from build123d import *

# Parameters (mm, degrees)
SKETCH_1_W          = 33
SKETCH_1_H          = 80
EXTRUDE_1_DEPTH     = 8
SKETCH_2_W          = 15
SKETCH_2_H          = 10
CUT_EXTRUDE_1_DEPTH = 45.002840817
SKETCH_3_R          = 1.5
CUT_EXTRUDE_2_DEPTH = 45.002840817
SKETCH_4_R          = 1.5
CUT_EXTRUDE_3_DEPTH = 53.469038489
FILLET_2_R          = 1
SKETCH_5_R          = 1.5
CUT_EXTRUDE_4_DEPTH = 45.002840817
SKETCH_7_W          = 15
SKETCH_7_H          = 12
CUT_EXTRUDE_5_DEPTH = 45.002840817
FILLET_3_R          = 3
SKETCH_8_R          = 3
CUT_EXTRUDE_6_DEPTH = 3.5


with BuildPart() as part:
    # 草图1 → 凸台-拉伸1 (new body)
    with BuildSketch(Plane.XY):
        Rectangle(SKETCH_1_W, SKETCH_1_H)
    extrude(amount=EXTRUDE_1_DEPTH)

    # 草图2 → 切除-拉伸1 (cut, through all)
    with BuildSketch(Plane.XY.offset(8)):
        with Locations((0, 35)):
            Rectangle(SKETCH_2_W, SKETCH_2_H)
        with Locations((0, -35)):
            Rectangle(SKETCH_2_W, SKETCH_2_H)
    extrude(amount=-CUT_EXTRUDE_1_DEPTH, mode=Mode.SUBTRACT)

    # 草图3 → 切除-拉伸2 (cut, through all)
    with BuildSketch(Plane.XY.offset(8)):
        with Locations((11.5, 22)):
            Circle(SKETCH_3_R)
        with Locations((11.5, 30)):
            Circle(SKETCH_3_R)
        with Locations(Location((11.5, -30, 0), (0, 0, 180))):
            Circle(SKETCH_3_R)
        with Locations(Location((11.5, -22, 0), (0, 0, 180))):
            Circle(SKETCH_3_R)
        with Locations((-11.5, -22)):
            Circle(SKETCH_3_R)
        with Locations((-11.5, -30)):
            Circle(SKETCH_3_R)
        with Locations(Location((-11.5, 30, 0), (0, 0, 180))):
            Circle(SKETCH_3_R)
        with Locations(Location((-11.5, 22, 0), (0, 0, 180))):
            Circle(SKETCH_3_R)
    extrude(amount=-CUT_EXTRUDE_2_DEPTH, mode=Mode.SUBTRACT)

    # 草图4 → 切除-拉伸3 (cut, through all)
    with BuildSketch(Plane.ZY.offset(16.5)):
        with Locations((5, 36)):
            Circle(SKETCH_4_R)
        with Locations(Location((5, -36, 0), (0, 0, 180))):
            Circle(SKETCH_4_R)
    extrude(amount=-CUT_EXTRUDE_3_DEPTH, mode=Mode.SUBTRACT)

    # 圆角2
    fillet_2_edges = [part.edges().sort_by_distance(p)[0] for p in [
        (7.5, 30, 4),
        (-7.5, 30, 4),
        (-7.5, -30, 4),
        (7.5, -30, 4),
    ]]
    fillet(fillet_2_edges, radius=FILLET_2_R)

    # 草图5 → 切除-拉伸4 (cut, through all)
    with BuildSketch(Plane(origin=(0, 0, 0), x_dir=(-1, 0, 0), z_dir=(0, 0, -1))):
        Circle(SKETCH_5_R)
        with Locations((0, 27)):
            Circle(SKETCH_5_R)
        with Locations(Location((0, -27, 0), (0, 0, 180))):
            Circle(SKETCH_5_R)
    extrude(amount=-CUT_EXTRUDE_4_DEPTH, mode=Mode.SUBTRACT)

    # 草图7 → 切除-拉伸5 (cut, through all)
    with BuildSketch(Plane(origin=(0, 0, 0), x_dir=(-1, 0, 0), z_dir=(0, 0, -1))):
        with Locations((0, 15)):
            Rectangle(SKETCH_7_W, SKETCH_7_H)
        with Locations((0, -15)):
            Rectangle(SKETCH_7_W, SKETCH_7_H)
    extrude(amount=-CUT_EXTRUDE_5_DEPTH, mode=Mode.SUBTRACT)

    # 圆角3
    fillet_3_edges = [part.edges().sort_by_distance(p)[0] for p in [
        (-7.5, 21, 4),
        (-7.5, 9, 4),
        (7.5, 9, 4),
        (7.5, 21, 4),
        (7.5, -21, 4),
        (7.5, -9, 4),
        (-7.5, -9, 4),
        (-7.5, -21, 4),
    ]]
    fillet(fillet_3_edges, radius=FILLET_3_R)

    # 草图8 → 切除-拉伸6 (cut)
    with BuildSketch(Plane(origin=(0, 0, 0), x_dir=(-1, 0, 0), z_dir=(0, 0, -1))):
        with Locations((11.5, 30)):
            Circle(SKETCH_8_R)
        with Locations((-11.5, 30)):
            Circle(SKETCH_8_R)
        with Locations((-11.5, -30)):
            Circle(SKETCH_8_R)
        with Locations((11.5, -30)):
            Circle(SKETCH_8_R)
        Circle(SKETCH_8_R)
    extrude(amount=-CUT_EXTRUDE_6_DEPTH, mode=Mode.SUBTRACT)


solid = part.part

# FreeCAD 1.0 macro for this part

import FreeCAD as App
import Part
import Sketcher
from FreeCAD import Vector
Q = App.Units.Quantity


def edges_at(feature, points):
    """Names of the edges that pass closest to the given points."""
    edges = feature.Shape.Edges
    near = lambda p: min(range(len(edges)), key=lambda i: edges[i].distToShape(Part.Vertex(*p))[0])
    return sorted({f"Edge{near(p) + 1}" for p in points})


def add_polygon(sketch, points):
    """Adds a closed chain of lines whose ends are joined by coincident constraints."""
    first, n = sketch.GeometryCount, len(points)
    for a, b in zip(points, points[1:] + points[:1]):
        sketch.addGeometry(Part.LineSegment(App.Vector(*a, 0), App.Vector(*b, 0)), False)
    for i in range(n):
        sketch.addConstraint(Sketcher.Constraint("Coincident", first + i, 2, first + (i + 1) % n, 1))

doc = App.newDocument("Part")
body = doc.addObject("PartDesign::Body", "Body")

# Sketch on XY plane
sketch1 = body.newObject("Sketcher::SketchObject", "Sketch")
sketch1.AttachmentSupport = (doc.getObject("XY_Plane"), [""])
sketch1.MapMode = "FlatFace"
add_polygon(sketch1, [(-16, 40), (-16, -40), (16, -40), (16, 40)])  # lines 0-3
sketch1.addConstraint(Sketcher.Constraint("Vertical", 0))
sketch1.addConstraint(Sketcher.Constraint("Horizontal", 1))
sketch1.addConstraint(Sketcher.Constraint("Vertical", 2))
sketch1.addConstraint(Sketcher.Constraint("Horizontal", 3))
sketch1.addConstraint(Sketcher.Constraint("Symmetric", 0, 2, 2, 2, -1, 1))
sketch1.addConstraint(Sketcher.Constraint("DistanceX", 1, 1, 1, 2, Q("33 mm")))
sketch1.addConstraint(Sketcher.Constraint("DistanceY", 0, 2, 0, 1, Q("80 mm")))
pad1 = body.newObject("PartDesign::Pad", "Pad")
pad1.Profile = sketch1
pad1.Length = 8

# Sketch on XY plane
sketch2 = body.newObject("Sketcher::SketchObject", "Sketch001")
sketch2.AttachmentSupport = (doc.getObject("XY_Plane"), [""])
sketch2.MapMode = "FlatFace"
sketch2.AttachmentOffset = App.Placement(Vector(0, 0, 8), App.Rotation())
add_polygon(sketch2, [(-7.5, 40), (-7.5, 30), (7.5, 30), (7.5, 40)])  # lines 0-3
add_polygon(sketch2, [(-7.5, -30), (-7.5, -40), (7.5, -40), (7.5, -30)])  # lines 4-7
sketch2.addConstraint(Sketcher.Constraint("Vertical", 0))
sketch2.addConstraint(Sketcher.Constraint("Horizontal", 1))
sketch2.addConstraint(Sketcher.Constraint("Vertical", 2))
sketch2.addConstraint(Sketcher.Constraint("Horizontal", 3))
sketch2.addConstraint(Sketcher.Constraint("Vertical", 4))
sketch2.addConstraint(Sketcher.Constraint("Horizontal", 5))
sketch2.addConstraint(Sketcher.Constraint("Vertical", 6))
sketch2.addConstraint(Sketcher.Constraint("Horizontal", 7))
sketch2.addConstraint(Sketcher.Constraint("Symmetric", 2, 2, 4, 2, -1, 1))
sketch2.addConstraint(Sketcher.Constraint("Symmetric", 0, 2, 6, 2, -1, 1))
sketch2.addConstraint(Sketcher.Constraint("Vertical", 3, 2, 4, 2))
sketch2.addConstraint(Sketcher.Constraint("DistanceX", 1, 1, 1, 2, Q("15 mm")))
sketch2.addConstraint(Sketcher.Constraint("DistanceY", 0, 2, 0, 1, Q("10 mm")))
sketch2.addConstraint(Sketcher.Constraint("DistanceY", -1, 1, 0, 2, Q("30 mm")))
pocket1 = body.newObject("PartDesign::Pocket", "Pocket")
pocket1.Profile = sketch2
pocket1.Type = "ThroughAll"

# Sketch on XY plane
sketch3 = body.newObject("Sketcher::SketchObject", "Sketch002")
sketch3.AttachmentSupport = (doc.getObject("XY_Plane"), [""])
sketch3.MapMode = "FlatFace"
sketch3.AttachmentOffset = App.Placement(Vector(0, 0, 8), App.Rotation())
sketch3.addGeometry(Part.Circle(Vector(11.5, 22, 0), Vector(0, 0, 1), 1.5), False)
sketch3.addGeometry(Part.Circle(Vector(11.5, 30, 0), Vector(0, 0, 1), 1.5), False)
sketch3.addGeometry(Part.Circle(Vector(11.5, -30, 0), Vector(0, 0, 1), 1.5), False)
sketch3.addGeometry(Part.Circle(Vector(11.5, -22, 0), Vector(0, 0, 1), 1.5), False)
sketch3.addGeometry(Part.Circle(Vector(-11.5, -22, 0), Vector(0, 0, 1), 1.5), False)
sketch3.addGeometry(Part.Circle(Vector(-11.5, -30, 0), Vector(0, 0, 1), 1.5), False)
sketch3.addGeometry(Part.Circle(Vector(-11.5, 30, 0), Vector(0, 0, 1), 1.5), False)
sketch3.addGeometry(Part.Circle(Vector(-11.5, 22, 0), Vector(0, 0, 1), 1.5), False)
sketch3.addConstraint(Sketcher.Constraint("Equal", 0, 1))
sketch3.addConstraint(Sketcher.Constraint("Equal", 1, 2))
sketch3.addConstraint(Sketcher.Constraint("Equal", 2, 3))
sketch3.addConstraint(Sketcher.Constraint("Equal", 3, 4))
sketch3.addConstraint(Sketcher.Constraint("Equal", 4, 5))
sketch3.addConstraint(Sketcher.Constraint("Equal", 5, 6))
sketch3.addConstraint(Sketcher.Constraint("Equal", 6, 7))
sketch3.addConstraint(Sketcher.Constraint("Symmetric", 0, 3, 4, 3, -1, 1))
sketch3.addConstraint(Sketcher.Constraint("Symmetric", 1, 3, 5, 3, -1, 1))
sketch3.addConstraint(Sketcher.Constraint("Symmetric", 2, 3, 6, 3, -1, 1))
sketch3.addConstraint(Sketcher.Constraint("Symmetric", 3, 3, 7, 3, -1, 1))
sketch3.addConstraint(Sketcher.Constraint("Symmetric", 3, 3, 4, 3, -2))
sketch3.addConstraint(Sketcher.Constraint("Symmetric", 2, 3, 5, 3, -2))
sketch3.addConstraint(Sketcher.Constraint("Vertical", 0, 3, 1, 3))
sketch3.addConstraint(Sketcher.Constraint("Diameter", 0, Q("3 mm")))
sketch3.addConstraint(Sketcher.Constraint("DistanceY", -1, 1, 0, 3, Q("22 mm")))
sketch3.addConstraint(Sketcher.Constraint("DistanceY", -1, 1, 1, 3, Q("30 mm")))
sketch3.addConstraint(Sketcher.Constraint("DistanceX", 4, 3, 3, 3, Q("23 mm")))
pocket2 = body.newObject("PartDesign::Pocket", "Pocket001")
pocket2.Profile = sketch3
pocket2.Type = "ThroughAll"

# Sketch on YZ plane
sketch4 = body.newObject("Sketcher::SketchObject", "Sketch003")
sketch4.AttachmentSupport = (doc.getObject("YZ_Plane"), [""])
sketch4.MapMode = "FlatFace"
sketch4.AttachmentOffset = App.Placement(Vector(0, 0, -16.5), App.Rotation())
sketch4.addGeometry(Part.Circle(Vector(36, 5, 0), Vector(0, 0, 1), 1.5), False)
sketch4.addGeometry(Part.Circle(Vector(-36, 5, 0), Vector(0, 0, 1), 1.5), False)
sketch4.addConstraint(Sketcher.Constraint("Equal", 0, 1))
sketch4.addConstraint(Sketcher.Constraint("Symmetric", 0, 3, 1, 3, -2))
sketch4.addConstraint(Sketcher.Constraint("Diameter", 0, Q("3 mm")))
sketch4.addConstraint(Sketcher.Constraint("DistanceX", -1, 1, 0, 3, Q("36 mm")))
sketch4.addConstraint(Sketcher.Constraint("DistanceY", -1, 1, 0, 3, Q("5 mm")))
pocket3 = body.newObject("PartDesign::Pocket", "Pocket002")
pocket3.Profile = sketch4
pocket3.Type = "ThroughAll"
pocket3.Reversed = True
doc.recompute()

fillet = body.newObject("PartDesign::Fillet", "Fillet")
fillet.Base = (pocket3, edges_at(pocket3, [
    (7.5, 30, 4),
    (-7.5, 30, 4),
    (-7.5, -30, 4),
    (7.5, -30, 4),
]))
fillet.Radius = 1

# Sketch on XY plane
sketch5 = body.newObject("Sketcher::SketchObject", "Sketch004")
sketch5.AttachmentSupport = (doc.getObject("XY_Plane"), [""])
sketch5.MapMode = "FlatFace"
sketch5.addGeometry(Part.Circle(Vector(0, 0, 0), Vector(0, 0, 1), 1.5), False)
sketch5.addGeometry(Part.Circle(Vector(0, 27, 0), Vector(0, 0, 1), 1.5), False)
sketch5.addGeometry(Part.Circle(Vector(0, -27, 0), Vector(0, 0, 1), 1.5), False)
sketch5.addConstraint(Sketcher.Constraint("Coincident", 0, 3, -1, 1))
sketch5.addConstraint(Sketcher.Constraint("Equal", 0, 1))
sketch5.addConstraint(Sketcher.Constraint("Equal", 1, 2))
sketch5.addConstraint(Sketcher.Constraint("Symmetric", 1, 3, 2, 3, -1, 1))
sketch5.addConstraint(Sketcher.Constraint("PointOnObject", 1, 3, -2))
sketch5.addConstraint(Sketcher.Constraint("Diameter", 0, Q("3 mm")))
sketch5.addConstraint(Sketcher.Constraint("DistanceY", -1, 1, 1, 3, Q("27 mm")))
pocket4 = body.newObject("PartDesign::Pocket", "Pocket003")
pocket4.Profile = sketch5
pocket4.Type = "ThroughAll"
pocket4.Reversed = True

# Sketch on XY plane
sketch6 = body.newObject("Sketcher::SketchObject", "Sketch005")
sketch6.AttachmentSupport = (doc.getObject("XY_Plane"), [""])
sketch6.MapMode = "FlatFace"
add_polygon(sketch6, [(8, 21), (8, 9), (-8, 9), (-8, 21)])  # lines 0-3
add_polygon(sketch6, [(8, -9), (8, -21), (-8, -21), (-8, -9)])  # lines 4-7
sketch6.addConstraint(Sketcher.Constraint("Vertical", 0))
sketch6.addConstraint(Sketcher.Constraint("Horizontal", 1))
sketch6.addConstraint(Sketcher.Constraint("Vertical", 2))
sketch6.addConstraint(Sketcher.Constraint("Horizontal", 3))
sketch6.addConstraint(Sketcher.Constraint("Vertical", 4))
sketch6.addConstraint(Sketcher.Constraint("Horizontal", 5))
sketch6.addConstraint(Sketcher.Constraint("Vertical", 6))
sketch6.addConstraint(Sketcher.Constraint("Horizontal", 7))
sketch6.addConstraint(Sketcher.Constraint("Symmetric", 2, 2, 4, 2, -1, 1))
sketch6.addConstraint(Sketcher.Constraint("Symmetric", 0, 2, 6, 2, -1, 1))
sketch6.addConstraint(Sketcher.Constraint("Vertical", 3, 2, 4, 2))
sketch6.addConstraint(Sketcher.Constraint("DistanceX", 1, 2, 1, 1, Q("15 mm")))
sketch6.addConstraint(Sketcher.Constraint("DistanceY", 0, 2, 0, 1, Q("12 mm")))
sketch6.addConstraint(Sketcher.Constraint("DistanceY", -1, 1, 0, 2, Q("9 mm")))
pocket5 = body.newObject("PartDesign::Pocket", "Pocket004")
pocket5.Profile = sketch6
pocket5.Type = "ThroughAll"
pocket5.Reversed = True
doc.recompute()

fillet2 = body.newObject("PartDesign::Fillet", "Fillet001")
fillet2.Base = (pocket5, edges_at(pocket5, [
    (-7.5, 21, 4),
    (-7.5, 9, 4),
    (7.5, 9, 4),
    (7.5, 21, 4),
    (7.5, -21, 4),
    (7.5, -9, 4),
    (-7.5, -9, 4),
    (-7.5, -21, 4),
]))
fillet2.Radius = 3

# Sketch on XY plane
sketch7 = body.newObject("Sketcher::SketchObject", "Sketch006")
sketch7.AttachmentSupport = (doc.getObject("XY_Plane"), [""])
sketch7.MapMode = "FlatFace"
sketch7.addGeometry(Part.Circle(Vector(-11.5, 30, 0), Vector(0, 0, 1), 3), False)
sketch7.addGeometry(Part.Circle(Vector(11.5, 30, 0), Vector(0, 0, 1), 3), False)
sketch7.addGeometry(Part.Circle(Vector(11.5, -30, 0), Vector(0, 0, 1), 3), False)
sketch7.addGeometry(Part.Circle(Vector(-11.5, -30, 0), Vector(0, 0, 1), 3), False)
sketch7.addGeometry(Part.Circle(Vector(0, 0, 0), Vector(0, 0, 1), 3), False)
sketch7.addConstraint(Sketcher.Constraint("Coincident", 4, 3, -1, 1))
sketch7.addConstraint(Sketcher.Constraint("Equal", 0, 1))
sketch7.addConstraint(Sketcher.Constraint("Equal", 1, 2))
sketch7.addConstraint(Sketcher.Constraint("Equal", 2, 3))
sketch7.addConstraint(Sketcher.Constraint("Equal", 3, 4))
sketch7.addConstraint(Sketcher.Constraint("Symmetric", 0, 3, 2, 3, -1, 1))
sketch7.addConstraint(Sketcher.Constraint("Symmetric", 1, 3, 3, 3, -1, 1))
sketch7.addConstraint(Sketcher.Constraint("Symmetric", 0, 3, 1, 3, -2))
sketch7.addConstraint(Sketcher.Constraint("Diameter", 0, Q("6 mm")))
sketch7.addConstraint(Sketcher.Constraint("DistanceY", -1, 1, 0, 3, Q("30 mm")))
sketch7.addConstraint(Sketcher.Constraint("DistanceX", 0, 3, 1, 3, Q("23 mm")))
pocket6 = body.newObject("PartDesign::Pocket", "Pocket005")
pocket6.Profile = sketch7
pocket6.Length = 3.5
pocket6.Reversed = True

doc.recompute()
